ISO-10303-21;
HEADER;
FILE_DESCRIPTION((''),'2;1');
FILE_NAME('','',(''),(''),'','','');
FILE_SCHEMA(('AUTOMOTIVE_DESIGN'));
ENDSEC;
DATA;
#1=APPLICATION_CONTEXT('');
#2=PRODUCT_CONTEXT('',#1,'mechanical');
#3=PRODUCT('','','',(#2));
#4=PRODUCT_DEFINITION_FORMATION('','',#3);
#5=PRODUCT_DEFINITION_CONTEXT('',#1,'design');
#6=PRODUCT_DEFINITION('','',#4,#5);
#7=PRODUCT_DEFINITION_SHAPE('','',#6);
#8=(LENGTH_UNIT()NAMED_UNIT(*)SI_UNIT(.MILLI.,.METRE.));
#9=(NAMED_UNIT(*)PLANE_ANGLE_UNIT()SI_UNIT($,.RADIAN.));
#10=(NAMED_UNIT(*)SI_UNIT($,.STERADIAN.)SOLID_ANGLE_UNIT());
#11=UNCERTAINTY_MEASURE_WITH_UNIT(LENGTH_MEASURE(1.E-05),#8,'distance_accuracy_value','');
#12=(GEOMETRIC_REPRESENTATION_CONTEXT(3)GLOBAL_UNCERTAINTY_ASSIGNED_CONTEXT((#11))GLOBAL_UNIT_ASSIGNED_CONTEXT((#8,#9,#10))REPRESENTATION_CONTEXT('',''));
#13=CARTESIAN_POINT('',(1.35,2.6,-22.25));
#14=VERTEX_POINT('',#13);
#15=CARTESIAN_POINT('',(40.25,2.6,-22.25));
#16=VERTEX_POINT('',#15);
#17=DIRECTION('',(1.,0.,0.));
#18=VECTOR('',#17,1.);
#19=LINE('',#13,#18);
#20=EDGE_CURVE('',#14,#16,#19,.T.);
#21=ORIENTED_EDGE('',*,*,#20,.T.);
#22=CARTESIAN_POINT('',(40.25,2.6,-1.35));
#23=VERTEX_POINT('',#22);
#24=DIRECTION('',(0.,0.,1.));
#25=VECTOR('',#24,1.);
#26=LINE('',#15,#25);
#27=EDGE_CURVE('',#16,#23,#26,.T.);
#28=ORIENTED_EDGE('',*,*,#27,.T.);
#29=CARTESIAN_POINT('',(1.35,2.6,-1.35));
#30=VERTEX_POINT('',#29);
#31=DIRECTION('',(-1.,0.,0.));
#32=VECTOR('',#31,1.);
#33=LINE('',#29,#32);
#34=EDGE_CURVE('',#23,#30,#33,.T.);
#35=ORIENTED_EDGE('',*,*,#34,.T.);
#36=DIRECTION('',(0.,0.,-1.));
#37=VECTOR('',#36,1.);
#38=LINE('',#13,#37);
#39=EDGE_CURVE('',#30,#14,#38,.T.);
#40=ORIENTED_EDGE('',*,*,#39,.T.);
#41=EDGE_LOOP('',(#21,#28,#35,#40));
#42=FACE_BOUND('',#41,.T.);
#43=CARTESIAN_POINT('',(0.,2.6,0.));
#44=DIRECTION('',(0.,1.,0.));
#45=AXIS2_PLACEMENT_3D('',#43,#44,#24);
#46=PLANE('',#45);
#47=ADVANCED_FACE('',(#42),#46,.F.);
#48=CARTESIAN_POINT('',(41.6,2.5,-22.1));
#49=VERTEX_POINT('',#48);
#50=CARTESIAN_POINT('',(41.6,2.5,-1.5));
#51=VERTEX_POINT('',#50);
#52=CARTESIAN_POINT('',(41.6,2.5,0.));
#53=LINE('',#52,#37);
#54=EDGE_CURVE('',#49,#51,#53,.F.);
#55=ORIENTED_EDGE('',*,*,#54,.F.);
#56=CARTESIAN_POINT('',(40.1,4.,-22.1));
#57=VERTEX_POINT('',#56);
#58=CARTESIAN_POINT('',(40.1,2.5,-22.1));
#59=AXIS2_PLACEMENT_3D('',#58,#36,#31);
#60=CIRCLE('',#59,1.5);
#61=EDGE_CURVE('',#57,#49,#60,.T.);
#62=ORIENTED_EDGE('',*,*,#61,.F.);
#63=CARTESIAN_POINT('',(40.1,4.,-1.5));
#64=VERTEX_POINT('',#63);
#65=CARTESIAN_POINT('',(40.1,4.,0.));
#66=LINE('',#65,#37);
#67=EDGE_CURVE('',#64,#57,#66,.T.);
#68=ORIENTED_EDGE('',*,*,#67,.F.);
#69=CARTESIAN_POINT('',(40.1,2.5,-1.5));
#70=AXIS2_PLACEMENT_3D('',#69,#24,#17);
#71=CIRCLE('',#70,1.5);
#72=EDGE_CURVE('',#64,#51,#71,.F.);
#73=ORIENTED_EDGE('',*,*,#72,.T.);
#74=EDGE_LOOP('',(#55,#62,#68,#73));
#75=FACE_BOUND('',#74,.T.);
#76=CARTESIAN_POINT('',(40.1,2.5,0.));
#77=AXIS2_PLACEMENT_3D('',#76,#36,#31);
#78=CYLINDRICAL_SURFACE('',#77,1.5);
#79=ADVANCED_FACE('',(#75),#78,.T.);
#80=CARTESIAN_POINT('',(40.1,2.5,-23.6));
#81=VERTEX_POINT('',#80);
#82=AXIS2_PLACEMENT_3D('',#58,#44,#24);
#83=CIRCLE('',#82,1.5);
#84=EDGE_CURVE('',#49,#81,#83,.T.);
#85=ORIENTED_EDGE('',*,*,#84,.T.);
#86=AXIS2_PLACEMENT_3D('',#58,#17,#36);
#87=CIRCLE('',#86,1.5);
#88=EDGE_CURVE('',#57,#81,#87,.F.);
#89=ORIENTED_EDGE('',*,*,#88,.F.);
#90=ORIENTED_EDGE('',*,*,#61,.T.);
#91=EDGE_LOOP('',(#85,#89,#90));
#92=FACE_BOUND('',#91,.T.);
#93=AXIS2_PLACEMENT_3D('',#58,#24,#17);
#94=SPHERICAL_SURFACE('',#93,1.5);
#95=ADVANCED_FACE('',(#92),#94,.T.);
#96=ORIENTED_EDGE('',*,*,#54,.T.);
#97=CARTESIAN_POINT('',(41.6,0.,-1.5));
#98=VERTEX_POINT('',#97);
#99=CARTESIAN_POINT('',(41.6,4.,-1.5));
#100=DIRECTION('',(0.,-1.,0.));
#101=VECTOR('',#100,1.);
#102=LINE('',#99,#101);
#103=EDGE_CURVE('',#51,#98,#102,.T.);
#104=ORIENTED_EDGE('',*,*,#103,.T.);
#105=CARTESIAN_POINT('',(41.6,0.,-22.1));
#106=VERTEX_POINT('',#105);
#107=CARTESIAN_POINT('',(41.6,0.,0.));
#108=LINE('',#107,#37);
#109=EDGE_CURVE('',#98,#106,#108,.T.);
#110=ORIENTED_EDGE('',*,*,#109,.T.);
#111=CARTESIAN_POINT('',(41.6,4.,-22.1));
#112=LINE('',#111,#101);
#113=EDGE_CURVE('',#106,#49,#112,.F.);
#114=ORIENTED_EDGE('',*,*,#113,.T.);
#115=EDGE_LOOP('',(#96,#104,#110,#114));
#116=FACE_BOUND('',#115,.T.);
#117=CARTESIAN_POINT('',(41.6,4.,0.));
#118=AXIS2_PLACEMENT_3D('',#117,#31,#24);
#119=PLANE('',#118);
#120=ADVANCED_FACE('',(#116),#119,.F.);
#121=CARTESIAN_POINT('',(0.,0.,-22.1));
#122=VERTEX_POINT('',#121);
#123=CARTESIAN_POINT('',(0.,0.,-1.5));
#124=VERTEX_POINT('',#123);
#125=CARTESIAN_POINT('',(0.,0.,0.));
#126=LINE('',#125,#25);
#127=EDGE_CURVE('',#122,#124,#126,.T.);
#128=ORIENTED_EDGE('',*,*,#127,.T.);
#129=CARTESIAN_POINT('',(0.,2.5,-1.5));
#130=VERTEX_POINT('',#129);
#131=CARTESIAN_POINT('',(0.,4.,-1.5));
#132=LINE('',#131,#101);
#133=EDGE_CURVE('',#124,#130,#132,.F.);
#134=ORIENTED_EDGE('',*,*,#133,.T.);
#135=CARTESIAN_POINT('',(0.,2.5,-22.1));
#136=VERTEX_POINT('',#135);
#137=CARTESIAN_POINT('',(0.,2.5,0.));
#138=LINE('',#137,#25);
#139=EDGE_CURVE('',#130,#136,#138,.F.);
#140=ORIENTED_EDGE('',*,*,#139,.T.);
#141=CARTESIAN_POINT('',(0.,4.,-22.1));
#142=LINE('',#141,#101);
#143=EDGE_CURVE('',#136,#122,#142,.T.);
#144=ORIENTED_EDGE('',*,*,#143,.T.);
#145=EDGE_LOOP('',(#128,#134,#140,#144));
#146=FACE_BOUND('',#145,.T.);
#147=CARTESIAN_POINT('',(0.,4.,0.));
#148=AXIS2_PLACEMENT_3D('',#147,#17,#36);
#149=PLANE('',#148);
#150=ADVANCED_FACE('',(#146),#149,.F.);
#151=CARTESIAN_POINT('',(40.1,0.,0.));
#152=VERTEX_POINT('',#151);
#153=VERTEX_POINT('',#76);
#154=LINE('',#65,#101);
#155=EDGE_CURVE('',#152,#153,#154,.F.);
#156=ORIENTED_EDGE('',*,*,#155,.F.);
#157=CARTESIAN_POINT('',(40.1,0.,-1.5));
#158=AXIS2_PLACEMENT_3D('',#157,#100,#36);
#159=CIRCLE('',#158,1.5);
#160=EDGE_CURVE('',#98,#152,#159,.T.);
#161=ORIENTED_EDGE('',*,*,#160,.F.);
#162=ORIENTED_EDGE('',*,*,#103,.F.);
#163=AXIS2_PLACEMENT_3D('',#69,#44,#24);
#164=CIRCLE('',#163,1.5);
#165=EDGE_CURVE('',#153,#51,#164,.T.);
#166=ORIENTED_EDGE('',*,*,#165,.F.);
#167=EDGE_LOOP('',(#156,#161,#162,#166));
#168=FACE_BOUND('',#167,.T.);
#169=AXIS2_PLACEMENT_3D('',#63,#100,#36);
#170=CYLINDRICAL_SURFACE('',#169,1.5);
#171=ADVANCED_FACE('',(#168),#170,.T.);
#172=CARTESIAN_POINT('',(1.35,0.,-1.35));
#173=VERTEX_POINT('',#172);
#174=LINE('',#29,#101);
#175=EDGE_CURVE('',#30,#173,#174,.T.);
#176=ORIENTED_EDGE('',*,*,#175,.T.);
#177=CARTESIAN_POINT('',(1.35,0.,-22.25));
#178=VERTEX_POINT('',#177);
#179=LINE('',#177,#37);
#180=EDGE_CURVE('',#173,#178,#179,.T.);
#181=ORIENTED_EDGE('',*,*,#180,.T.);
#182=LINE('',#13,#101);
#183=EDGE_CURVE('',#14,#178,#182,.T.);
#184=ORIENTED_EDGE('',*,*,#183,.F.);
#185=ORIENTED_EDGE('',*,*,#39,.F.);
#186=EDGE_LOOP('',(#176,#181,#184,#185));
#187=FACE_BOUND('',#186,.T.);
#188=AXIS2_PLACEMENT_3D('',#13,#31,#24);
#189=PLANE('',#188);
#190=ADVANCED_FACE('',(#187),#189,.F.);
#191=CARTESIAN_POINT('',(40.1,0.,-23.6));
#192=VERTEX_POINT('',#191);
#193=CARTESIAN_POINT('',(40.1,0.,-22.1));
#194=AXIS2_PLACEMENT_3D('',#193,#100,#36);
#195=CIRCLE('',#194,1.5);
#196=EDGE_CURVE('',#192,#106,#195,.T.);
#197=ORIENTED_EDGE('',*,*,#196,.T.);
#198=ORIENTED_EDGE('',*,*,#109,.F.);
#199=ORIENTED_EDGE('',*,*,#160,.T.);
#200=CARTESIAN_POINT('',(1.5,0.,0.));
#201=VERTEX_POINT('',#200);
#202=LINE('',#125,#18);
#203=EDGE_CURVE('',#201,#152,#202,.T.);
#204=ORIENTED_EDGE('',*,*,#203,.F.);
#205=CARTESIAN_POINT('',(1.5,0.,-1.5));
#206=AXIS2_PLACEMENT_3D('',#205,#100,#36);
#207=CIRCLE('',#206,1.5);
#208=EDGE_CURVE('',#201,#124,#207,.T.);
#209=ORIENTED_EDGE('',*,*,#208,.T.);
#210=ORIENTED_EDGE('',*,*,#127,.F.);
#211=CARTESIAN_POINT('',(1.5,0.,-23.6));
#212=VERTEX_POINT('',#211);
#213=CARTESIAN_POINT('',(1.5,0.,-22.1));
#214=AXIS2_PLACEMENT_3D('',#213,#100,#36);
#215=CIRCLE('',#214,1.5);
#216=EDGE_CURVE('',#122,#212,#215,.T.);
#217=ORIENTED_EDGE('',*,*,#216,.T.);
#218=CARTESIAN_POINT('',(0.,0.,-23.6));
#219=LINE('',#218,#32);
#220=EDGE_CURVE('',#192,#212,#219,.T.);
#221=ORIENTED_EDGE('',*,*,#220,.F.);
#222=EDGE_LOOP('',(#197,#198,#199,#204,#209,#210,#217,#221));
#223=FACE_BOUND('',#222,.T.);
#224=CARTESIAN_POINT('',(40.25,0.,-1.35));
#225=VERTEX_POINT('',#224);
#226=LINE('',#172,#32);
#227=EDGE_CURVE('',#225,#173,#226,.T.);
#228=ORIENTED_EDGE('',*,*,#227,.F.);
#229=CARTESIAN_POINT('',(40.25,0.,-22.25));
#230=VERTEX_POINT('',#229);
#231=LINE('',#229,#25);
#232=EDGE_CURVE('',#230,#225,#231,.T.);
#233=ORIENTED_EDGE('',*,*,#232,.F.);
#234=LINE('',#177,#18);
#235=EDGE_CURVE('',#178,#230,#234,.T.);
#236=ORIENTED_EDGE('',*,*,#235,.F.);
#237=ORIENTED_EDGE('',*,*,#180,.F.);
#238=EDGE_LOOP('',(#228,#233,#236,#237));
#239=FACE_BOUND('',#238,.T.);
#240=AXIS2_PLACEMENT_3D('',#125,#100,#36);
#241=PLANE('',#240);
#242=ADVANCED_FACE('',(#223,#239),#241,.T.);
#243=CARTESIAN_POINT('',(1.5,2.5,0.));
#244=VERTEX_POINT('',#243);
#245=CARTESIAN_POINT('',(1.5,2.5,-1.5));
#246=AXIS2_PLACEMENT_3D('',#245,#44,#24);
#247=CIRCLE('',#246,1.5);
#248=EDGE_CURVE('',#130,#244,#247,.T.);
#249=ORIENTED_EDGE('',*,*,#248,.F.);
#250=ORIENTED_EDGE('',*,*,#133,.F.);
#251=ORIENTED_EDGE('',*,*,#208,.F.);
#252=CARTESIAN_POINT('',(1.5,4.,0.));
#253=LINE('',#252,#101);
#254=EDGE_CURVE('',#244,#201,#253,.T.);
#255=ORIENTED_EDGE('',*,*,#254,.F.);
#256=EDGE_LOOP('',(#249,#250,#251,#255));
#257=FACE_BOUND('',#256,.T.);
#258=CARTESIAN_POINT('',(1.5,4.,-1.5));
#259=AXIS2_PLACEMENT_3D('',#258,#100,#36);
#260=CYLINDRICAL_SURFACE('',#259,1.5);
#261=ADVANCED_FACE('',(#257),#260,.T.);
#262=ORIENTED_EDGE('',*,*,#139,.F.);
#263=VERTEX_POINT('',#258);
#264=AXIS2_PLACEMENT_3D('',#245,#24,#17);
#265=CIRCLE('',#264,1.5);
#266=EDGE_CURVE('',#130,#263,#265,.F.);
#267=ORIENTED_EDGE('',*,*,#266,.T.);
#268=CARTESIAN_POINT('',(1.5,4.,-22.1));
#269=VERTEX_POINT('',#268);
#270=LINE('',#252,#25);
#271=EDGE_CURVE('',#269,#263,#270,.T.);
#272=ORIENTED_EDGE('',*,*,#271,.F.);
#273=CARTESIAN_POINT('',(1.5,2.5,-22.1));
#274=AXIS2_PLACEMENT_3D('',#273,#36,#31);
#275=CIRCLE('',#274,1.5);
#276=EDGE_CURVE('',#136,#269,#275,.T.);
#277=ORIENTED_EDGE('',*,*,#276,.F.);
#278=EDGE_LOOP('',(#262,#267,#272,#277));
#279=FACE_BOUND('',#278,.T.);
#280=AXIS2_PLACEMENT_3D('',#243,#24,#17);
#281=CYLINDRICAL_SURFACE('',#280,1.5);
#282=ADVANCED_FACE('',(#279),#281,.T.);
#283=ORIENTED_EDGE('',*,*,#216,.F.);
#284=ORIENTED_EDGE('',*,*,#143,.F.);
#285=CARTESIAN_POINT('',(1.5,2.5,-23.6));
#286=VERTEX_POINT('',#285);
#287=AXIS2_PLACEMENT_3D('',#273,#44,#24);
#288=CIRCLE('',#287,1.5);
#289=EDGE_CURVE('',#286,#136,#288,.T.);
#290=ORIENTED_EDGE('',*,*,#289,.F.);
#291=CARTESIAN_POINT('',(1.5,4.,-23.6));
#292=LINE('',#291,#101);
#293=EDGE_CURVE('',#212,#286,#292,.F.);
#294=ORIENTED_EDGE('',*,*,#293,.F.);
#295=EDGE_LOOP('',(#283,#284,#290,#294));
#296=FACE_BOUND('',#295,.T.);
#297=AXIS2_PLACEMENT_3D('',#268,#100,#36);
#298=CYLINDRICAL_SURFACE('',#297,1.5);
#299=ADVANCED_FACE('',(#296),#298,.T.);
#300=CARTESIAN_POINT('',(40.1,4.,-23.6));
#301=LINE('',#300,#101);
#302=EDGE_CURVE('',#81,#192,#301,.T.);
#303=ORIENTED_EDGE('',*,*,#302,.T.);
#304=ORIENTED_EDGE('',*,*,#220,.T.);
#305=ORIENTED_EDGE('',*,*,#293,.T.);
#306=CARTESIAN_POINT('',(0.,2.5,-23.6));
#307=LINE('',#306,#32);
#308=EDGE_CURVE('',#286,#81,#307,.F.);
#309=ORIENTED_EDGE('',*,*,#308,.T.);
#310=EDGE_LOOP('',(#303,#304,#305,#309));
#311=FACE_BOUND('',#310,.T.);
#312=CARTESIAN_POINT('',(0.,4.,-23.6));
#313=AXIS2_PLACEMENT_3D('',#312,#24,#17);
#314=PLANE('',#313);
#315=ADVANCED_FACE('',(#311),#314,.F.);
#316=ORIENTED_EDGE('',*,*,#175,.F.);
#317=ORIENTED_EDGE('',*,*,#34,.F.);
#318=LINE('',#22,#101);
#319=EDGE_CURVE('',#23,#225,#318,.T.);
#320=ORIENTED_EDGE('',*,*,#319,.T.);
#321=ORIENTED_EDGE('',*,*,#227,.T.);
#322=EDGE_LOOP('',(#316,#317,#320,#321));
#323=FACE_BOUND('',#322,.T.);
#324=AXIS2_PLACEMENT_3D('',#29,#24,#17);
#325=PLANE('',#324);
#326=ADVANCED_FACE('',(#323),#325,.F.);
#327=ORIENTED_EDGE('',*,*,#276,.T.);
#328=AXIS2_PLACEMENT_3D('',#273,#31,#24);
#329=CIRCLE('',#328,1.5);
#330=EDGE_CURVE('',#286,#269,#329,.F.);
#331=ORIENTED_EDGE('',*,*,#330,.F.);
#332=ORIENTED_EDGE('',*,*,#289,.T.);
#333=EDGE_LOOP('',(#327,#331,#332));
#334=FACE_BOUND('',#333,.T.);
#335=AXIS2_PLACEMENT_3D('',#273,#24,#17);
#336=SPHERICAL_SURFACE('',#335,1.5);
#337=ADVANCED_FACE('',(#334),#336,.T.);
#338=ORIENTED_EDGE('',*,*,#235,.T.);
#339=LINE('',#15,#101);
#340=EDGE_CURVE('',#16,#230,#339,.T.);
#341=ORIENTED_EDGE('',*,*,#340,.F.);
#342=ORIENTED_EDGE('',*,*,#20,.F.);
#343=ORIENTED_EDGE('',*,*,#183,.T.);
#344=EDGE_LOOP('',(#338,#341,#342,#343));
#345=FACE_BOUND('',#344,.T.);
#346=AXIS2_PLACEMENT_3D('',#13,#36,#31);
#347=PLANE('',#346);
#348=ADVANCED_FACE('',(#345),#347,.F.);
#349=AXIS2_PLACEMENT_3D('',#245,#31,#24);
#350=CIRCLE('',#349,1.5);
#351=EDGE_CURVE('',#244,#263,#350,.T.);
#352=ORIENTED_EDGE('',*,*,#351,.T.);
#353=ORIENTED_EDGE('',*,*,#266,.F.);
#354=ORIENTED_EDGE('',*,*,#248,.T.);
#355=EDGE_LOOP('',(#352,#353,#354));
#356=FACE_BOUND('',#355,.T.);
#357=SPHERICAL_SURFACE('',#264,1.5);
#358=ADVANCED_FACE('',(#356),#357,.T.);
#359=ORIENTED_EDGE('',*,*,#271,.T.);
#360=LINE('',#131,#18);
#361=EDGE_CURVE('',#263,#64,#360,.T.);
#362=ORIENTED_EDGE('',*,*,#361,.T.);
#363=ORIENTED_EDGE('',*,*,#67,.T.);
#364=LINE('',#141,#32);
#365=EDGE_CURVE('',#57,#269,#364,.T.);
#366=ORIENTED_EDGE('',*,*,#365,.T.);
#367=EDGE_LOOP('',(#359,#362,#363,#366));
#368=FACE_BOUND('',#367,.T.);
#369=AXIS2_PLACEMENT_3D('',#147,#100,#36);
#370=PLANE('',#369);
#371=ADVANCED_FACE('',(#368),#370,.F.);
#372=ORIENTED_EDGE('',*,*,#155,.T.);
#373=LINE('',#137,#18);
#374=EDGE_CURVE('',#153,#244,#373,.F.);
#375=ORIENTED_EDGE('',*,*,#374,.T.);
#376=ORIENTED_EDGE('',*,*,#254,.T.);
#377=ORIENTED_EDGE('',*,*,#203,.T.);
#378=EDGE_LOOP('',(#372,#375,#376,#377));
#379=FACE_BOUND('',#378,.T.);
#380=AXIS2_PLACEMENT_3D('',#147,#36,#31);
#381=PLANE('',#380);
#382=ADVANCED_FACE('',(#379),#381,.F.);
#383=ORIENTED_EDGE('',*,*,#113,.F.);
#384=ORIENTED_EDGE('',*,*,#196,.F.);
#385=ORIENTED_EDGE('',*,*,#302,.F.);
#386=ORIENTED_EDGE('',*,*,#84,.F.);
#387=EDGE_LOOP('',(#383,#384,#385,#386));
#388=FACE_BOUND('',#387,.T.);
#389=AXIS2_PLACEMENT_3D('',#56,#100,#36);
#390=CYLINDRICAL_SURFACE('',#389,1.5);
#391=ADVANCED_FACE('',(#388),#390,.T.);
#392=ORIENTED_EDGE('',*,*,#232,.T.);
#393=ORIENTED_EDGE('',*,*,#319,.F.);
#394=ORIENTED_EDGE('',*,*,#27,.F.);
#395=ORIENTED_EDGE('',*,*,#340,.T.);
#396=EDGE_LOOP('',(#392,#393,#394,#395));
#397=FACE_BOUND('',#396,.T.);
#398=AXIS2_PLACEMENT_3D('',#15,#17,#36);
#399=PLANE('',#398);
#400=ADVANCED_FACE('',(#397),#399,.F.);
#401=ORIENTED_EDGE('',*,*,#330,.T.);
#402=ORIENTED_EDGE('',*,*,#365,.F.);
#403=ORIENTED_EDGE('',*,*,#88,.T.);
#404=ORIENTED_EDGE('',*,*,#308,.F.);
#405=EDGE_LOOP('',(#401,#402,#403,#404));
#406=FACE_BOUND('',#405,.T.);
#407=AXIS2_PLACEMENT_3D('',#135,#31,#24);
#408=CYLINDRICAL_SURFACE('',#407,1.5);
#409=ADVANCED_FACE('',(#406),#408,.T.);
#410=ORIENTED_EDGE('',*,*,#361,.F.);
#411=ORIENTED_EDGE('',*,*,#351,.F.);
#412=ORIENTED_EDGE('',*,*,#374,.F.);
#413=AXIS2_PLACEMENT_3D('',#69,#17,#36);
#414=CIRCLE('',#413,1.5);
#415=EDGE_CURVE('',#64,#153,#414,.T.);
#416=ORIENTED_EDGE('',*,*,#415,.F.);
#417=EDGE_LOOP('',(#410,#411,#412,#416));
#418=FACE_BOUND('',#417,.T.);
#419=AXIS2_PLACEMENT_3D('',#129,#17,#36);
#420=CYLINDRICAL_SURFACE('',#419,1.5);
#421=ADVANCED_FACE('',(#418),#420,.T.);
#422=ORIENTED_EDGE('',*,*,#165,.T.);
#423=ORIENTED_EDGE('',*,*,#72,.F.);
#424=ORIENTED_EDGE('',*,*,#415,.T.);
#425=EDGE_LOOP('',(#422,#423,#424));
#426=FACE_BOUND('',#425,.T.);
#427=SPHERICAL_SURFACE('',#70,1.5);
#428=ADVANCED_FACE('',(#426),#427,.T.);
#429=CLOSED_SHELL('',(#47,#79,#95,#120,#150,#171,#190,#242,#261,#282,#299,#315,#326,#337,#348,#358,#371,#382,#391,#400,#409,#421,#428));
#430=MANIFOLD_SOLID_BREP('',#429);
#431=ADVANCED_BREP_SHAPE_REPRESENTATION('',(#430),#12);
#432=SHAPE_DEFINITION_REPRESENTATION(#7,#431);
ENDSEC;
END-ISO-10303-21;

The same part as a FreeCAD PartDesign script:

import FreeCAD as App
import Part
import Sketcher


def edges_at(feature, points):
    """Names of the edges that pass closest to the given points."""
    edges = feature.Shape.Edges
    near = lambda p: min(range(len(edges)), key=lambda i: edges[i].distToShape(Part.Vertex(*p))[0])
    return sorted({f"Edge{near(p) + 1}" for p in points})

doc = App.newDocument("Part")
params = doc.addObject("Spreadsheet::Sheet", "Params")
for row, (alias, value) in enumerate([
    ("sketch1_width", "41.6 mm"),
    ("sketch1_height", "23.6 mm"),
    ("pad1_length", "4 mm"),
    ("sketch2_width", "38.9 mm"),
    ("sketch2_height", "20.9 mm"),
    ("pocket1_length", "2.6 mm"),
    ("fillet_radius", "1.5 mm"),
], start=1):
    params.set(f"A{row}", alias)
    params.set(f"B{row}", "=" + value)
    params.setAlias(f"B{row}", alias)

body = doc.addObject("PartDesign::Body", "Body")

# Sketch on XZ plane
sketch1 = body.newObject("Sketcher::SketchObject", "Sketch")
sketch1.AttachmentSupport = (doc.getObject("XZ_Plane"), [""])
sketch1.MapMode = "FlatFace"
sketch1.addGeometry([
    Part.LineSegment(App.Vector(0, -24, 0), App.Vector(0, 0, 0)),
    Part.LineSegment(App.Vector(0, 0, 0), App.Vector(42, 0, 0)),
    Part.LineSegment(App.Vector(42, 0, 0), App.Vector(42, -24, 0)),
    Part.LineSegment(App.Vector(42, -24, 0), App.Vector(0, -24, 0)),
], False)
sketch1.addConstraint([
    Sketcher.Constraint("Coincident", 0, 2, 1, 1),
    Sketcher.Constraint("Coincident", 1, 2, 2, 1),
    Sketcher.Constraint("Coincident", 2, 2, 3, 1),
    Sketcher.Constraint("Coincident", 3, 2, 0, 1),
    Sketcher.Constraint("Vertical", 0),
    Sketcher.Constraint("Horizontal", 1),
    Sketcher.Constraint("Vertical", 2),
    Sketcher.Constraint("Horizontal", 3),
    Sketcher.Constraint("Coincident", 0, 2, -1, 1),
    Sketcher.Constraint("DistanceX", 1, 1, 1, 2, 41.6),
    Sketcher.Constraint("DistanceY", 0, 1, 0, 2, 23.6),
])
sketch1.setExpression("Constraints[9]", "Params.sketch1_width")
sketch1.setExpression("Constraints[10]", "Params.sketch1_height")
pad1 = body.newObject("PartDesign::Pad", "Pad")
pad1.Profile = sketch1
pad1.setExpression("Length", "Params.pad1_length")
pad1.Reversed = True

# Sketch on XZ plane
sketch2 = body.newObject("Sketcher::SketchObject", "Sketch001")
sketch2.AttachmentSupport = (doc.getObject("XZ_Plane"), [""])
sketch2.MapMode = "FlatFace"
sketch2.addGeometry([
    Part.LineSegment(App.Vector(1, -1, 0), App.Vector(1, -22, 0)),
    Part.LineSegment(App.Vector(1, -22, 0), App.Vector(40, -22, 0)),
    Part.LineSegment(App.Vector(40, -22, 0), App.Vector(40, -1, 0)),
    Part.LineSegment(App.Vector(40, -1, 0), App.Vector(1, -1, 0)),
], False)
sketch2.addConstraint([
    Sketcher.Constraint("Coincident", 0, 2, 1, 1),
    Sketcher.Constraint("Coincident", 1, 2, 2, 1),
    Sketcher.Constraint("Coincident", 2, 2, 3, 1),
    Sketcher.Constraint("Coincident", 3, 2, 0, 1),
    Sketcher.Constraint("Vertical", 0),
    Sketcher.Constraint("Horizontal", 1),
    Sketcher.Constraint("Vertical", 2),
    Sketcher.Constraint("Horizontal", 3),
    Sketcher.Constraint("DistanceX", 1, 1, 1, 2, 38.9),
    Sketcher.Constraint("DistanceY", 0, 2, 0, 1, 20.9),
    Sketcher.Constraint("DistanceX", -1, 1, 0, 2, 1.35),
    Sketcher.Constraint("DistanceY", 0, 2, -1, 1, 22.25),
])
sketch2.setExpression("Constraints[8]", "Params.sketch2_width")
sketch2.setExpression("Constraints[9]", "Params.sketch2_height")
pocket1 = body.newObject("PartDesign::Pocket", "Pocket")
pocket1.Profile = sketch2
pocket1.setExpression("Length", "Params.pocket1_length")
doc.recompute()

fillet = body.newObject("PartDesign::Fillet", "Fillet")
fillet.Base = (pocket1, edges_at(pocket1, [
    (41.6, 4, -11.8),
    (20.8, 4, -23.6),
    (0, 4, -11.8),
    (20.8, 4, 0),
    (0, 2, -23.6),
    (41.6, 2, -23.6),
    (41.6, 2, 0),
    (0, 2, 0),
]))
fillet.setExpression("Radius", "Params.fillet_radius")

doc.recompute()
